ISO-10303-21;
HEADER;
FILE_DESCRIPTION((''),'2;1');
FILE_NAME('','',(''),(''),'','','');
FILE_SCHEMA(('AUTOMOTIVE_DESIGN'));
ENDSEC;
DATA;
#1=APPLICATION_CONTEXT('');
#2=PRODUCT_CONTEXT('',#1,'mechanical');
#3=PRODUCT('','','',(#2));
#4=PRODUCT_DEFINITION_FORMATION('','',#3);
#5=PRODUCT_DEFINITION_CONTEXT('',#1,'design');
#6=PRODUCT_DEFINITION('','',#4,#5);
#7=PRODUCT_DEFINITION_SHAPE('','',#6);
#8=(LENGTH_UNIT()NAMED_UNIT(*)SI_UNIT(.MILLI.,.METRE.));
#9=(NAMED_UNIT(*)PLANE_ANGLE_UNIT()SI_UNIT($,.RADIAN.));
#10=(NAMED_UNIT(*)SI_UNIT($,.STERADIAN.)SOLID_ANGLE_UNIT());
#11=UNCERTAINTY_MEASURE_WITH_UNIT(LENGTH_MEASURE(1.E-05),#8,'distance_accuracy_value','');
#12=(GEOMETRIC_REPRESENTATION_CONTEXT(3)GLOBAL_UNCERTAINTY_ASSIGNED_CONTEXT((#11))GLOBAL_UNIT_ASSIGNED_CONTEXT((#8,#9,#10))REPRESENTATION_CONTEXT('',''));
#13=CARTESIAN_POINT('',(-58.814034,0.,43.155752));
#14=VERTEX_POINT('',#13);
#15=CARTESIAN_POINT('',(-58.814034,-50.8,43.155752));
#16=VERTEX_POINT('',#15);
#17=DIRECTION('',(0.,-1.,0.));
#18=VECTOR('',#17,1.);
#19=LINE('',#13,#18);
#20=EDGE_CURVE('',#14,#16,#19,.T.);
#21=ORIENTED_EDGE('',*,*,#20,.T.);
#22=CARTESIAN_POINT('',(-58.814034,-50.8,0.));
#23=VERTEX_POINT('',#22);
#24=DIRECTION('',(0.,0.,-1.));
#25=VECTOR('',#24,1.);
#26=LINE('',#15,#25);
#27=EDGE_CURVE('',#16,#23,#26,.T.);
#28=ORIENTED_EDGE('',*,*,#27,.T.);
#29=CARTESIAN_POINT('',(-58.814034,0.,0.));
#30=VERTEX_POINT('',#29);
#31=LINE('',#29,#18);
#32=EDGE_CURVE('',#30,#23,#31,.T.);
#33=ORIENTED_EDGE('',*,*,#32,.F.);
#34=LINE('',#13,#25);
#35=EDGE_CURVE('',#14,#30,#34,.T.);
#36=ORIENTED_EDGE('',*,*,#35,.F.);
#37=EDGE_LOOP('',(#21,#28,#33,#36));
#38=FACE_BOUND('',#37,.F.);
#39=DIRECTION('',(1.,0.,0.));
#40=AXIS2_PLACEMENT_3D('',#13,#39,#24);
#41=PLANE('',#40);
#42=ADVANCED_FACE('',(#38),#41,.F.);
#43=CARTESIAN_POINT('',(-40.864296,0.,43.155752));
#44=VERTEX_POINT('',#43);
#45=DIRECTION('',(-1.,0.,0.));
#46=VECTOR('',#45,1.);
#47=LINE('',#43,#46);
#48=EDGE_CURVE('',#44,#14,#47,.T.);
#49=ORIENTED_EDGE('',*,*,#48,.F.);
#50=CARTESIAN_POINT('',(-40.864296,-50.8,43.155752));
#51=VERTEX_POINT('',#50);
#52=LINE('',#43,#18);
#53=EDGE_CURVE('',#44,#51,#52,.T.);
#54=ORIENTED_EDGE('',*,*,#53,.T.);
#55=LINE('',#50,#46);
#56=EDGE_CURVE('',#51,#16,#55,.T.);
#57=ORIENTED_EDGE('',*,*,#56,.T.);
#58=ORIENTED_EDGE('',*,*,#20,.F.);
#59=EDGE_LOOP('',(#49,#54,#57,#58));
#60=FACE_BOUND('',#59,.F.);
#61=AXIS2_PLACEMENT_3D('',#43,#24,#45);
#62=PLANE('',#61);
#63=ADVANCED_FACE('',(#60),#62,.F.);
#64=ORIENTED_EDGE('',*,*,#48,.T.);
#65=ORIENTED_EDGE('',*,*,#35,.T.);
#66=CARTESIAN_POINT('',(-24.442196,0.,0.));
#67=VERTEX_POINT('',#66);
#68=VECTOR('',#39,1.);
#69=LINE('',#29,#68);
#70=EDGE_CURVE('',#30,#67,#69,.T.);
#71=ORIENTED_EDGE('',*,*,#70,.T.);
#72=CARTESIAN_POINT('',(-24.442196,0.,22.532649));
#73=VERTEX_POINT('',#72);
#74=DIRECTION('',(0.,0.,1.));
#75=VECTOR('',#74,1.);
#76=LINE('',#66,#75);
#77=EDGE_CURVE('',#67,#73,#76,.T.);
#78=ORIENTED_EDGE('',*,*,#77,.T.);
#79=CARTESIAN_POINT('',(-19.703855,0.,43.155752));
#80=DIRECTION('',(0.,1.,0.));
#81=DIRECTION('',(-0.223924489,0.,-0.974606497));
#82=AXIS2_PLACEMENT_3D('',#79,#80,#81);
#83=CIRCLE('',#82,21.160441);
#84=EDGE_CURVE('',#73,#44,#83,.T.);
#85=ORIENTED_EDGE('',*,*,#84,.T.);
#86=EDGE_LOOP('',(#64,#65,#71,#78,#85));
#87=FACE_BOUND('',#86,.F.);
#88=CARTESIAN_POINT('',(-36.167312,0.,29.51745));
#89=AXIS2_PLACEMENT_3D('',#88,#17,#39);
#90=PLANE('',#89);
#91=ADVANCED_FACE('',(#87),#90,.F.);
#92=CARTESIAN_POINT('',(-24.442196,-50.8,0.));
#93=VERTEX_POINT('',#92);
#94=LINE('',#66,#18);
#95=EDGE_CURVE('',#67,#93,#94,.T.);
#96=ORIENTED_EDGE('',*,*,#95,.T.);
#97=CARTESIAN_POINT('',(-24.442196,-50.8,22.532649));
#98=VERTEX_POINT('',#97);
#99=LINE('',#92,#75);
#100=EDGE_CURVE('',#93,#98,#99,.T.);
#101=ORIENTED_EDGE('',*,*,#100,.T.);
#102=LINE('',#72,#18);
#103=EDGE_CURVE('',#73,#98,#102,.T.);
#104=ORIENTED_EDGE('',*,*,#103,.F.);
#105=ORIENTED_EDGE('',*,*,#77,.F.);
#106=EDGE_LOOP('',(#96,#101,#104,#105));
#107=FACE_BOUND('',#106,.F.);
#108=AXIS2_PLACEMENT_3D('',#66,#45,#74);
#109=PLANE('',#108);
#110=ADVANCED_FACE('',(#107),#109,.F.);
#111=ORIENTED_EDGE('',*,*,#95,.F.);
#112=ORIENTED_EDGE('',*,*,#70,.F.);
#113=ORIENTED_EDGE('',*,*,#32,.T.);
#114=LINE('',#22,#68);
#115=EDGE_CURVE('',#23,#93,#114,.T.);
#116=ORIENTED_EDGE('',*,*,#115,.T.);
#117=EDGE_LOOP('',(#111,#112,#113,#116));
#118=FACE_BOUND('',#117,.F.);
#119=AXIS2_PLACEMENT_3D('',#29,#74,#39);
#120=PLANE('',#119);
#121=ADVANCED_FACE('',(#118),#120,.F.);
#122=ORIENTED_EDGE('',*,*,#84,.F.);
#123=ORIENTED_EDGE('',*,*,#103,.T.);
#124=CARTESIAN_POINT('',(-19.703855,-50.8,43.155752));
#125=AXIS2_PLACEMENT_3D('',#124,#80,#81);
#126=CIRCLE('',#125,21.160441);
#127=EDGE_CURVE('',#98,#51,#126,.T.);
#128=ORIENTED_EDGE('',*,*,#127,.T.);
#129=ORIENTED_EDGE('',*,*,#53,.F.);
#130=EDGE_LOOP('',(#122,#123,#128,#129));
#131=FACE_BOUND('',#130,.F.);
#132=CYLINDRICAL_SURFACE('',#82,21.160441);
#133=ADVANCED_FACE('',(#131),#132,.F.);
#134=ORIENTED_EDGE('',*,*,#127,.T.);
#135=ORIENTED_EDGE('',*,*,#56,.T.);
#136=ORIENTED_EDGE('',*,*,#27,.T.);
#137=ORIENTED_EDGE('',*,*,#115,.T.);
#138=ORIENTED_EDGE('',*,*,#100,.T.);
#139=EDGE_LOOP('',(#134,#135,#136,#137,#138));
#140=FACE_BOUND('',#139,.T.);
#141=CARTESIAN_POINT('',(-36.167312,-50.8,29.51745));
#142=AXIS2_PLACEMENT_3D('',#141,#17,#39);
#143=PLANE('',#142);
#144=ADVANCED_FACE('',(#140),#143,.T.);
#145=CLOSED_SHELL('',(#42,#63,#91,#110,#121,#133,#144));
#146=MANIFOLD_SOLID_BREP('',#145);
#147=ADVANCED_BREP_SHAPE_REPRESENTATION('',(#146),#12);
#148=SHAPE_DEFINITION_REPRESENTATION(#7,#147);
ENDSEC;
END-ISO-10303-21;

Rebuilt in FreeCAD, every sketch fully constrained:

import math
import FreeCAD as App
import Part
import Sketcher

V = App.Vector
Q = App.Units.Quantity

doc = App.newDocument("Part")
params = doc.addObject("Spreadsheet::Sheet", "Params")
for row, (alias, value) in enumerate([
    ("pad1_length", "2 in"),
], start=1):
    params.set(f"A{row}", alias)
    params.set(f"B{row}", "=" + value)
    params.setAlias(f"B{row}", alias)

body = doc.addObject("PartDesign::Body", "Body")

# Sketch on XZ plane
sketch1 = doc.addObject("Sketcher::SketchObject", "Sketch")
body.addObject(sketch1)
sketch1.AttachmentSupport = (doc.XZ_Plane, [""])
sketch1.MapMode = "FlatFace"
sketch1.addGeometry(Part.ArcOfCircle(Part.Circle(V(-20, 43, 0), V(0, 0, 1), 21), math.radians(-180), math.radians(-103)), False)
sketch1.addGeometry(Part.LineSegment(V(-41, 43, 0), V(-59, 43, 0)), False)
sketch1.addGeometry(Part.LineSegment(V(-59, 43, 0), V(-59, 0, 0)), False)
sketch1.addGeometry(Part.LineSegment(V(-59, 0, 0), V(-24, 0, 0)), False)
sketch1.addGeometry(Part.LineSegment(V(-24, 0, 0), V(-24, 23, 0)), False)
sketch1.addConstraint(Sketcher.Constraint("Coincident", 0, 1, 1, 1))
sketch1.addConstraint(Sketcher.Constraint("Coincident", 1, 2, 2, 1))
sketch1.addConstraint(Sketcher.Constraint("Coincident", 2, 2, 3, 1))
sketch1.addConstraint(Sketcher.Constraint("Coincident", 3, 2, 4, 1))
sketch1.addConstraint(Sketcher.Constraint("Coincident", 4, 2, 0, 2))
sketch1.addConstraint(Sketcher.Constraint("Horizontal", 1))
sketch1.addConstraint(Sketcher.Constraint("Vertical", 2))
sketch1.addConstraint(Sketcher.Constraint("Horizontal", 3))
sketch1.addConstraint(Sketcher.Constraint("Vertical", 4))
sketch1.addConstraint(Sketcher.Constraint("PointOnObject", 2, 2, -1))
sketch1.addConstraint(Sketcher.Constraint("Radius", 0, Q("21.160441 mm")))
sketch1.addConstraint(Sketcher.Constraint("DistanceY", 4, 1, 4, 2, Q("22.532649 mm")))
sketch1.addConstraint(Sketcher.Constraint("DistanceX", 0, 1, 3, 2, Q("16.4221 mm")))
sketch1.addConstraint(Sketcher.Constraint("DistanceX", 1, 2, 1, 1, Q("17.949738 mm")))
sketch1.addConstraint(Sketcher.Constraint("DistanceY", 2, 2, 2, 1, Q("43.155752 mm")))
sketch1.addConstraint(Sketcher.Constraint("DistanceX", 0, 3, -1, 1, Q("19.703855 mm")))
pad1 = doc.addObject("PartDesign::Pad", "Pad")
body.addObject(pad1)
pad1.Profile = sketch1
pad1.setExpression("Length", "Params.pad1_length")

doc.recompute()
